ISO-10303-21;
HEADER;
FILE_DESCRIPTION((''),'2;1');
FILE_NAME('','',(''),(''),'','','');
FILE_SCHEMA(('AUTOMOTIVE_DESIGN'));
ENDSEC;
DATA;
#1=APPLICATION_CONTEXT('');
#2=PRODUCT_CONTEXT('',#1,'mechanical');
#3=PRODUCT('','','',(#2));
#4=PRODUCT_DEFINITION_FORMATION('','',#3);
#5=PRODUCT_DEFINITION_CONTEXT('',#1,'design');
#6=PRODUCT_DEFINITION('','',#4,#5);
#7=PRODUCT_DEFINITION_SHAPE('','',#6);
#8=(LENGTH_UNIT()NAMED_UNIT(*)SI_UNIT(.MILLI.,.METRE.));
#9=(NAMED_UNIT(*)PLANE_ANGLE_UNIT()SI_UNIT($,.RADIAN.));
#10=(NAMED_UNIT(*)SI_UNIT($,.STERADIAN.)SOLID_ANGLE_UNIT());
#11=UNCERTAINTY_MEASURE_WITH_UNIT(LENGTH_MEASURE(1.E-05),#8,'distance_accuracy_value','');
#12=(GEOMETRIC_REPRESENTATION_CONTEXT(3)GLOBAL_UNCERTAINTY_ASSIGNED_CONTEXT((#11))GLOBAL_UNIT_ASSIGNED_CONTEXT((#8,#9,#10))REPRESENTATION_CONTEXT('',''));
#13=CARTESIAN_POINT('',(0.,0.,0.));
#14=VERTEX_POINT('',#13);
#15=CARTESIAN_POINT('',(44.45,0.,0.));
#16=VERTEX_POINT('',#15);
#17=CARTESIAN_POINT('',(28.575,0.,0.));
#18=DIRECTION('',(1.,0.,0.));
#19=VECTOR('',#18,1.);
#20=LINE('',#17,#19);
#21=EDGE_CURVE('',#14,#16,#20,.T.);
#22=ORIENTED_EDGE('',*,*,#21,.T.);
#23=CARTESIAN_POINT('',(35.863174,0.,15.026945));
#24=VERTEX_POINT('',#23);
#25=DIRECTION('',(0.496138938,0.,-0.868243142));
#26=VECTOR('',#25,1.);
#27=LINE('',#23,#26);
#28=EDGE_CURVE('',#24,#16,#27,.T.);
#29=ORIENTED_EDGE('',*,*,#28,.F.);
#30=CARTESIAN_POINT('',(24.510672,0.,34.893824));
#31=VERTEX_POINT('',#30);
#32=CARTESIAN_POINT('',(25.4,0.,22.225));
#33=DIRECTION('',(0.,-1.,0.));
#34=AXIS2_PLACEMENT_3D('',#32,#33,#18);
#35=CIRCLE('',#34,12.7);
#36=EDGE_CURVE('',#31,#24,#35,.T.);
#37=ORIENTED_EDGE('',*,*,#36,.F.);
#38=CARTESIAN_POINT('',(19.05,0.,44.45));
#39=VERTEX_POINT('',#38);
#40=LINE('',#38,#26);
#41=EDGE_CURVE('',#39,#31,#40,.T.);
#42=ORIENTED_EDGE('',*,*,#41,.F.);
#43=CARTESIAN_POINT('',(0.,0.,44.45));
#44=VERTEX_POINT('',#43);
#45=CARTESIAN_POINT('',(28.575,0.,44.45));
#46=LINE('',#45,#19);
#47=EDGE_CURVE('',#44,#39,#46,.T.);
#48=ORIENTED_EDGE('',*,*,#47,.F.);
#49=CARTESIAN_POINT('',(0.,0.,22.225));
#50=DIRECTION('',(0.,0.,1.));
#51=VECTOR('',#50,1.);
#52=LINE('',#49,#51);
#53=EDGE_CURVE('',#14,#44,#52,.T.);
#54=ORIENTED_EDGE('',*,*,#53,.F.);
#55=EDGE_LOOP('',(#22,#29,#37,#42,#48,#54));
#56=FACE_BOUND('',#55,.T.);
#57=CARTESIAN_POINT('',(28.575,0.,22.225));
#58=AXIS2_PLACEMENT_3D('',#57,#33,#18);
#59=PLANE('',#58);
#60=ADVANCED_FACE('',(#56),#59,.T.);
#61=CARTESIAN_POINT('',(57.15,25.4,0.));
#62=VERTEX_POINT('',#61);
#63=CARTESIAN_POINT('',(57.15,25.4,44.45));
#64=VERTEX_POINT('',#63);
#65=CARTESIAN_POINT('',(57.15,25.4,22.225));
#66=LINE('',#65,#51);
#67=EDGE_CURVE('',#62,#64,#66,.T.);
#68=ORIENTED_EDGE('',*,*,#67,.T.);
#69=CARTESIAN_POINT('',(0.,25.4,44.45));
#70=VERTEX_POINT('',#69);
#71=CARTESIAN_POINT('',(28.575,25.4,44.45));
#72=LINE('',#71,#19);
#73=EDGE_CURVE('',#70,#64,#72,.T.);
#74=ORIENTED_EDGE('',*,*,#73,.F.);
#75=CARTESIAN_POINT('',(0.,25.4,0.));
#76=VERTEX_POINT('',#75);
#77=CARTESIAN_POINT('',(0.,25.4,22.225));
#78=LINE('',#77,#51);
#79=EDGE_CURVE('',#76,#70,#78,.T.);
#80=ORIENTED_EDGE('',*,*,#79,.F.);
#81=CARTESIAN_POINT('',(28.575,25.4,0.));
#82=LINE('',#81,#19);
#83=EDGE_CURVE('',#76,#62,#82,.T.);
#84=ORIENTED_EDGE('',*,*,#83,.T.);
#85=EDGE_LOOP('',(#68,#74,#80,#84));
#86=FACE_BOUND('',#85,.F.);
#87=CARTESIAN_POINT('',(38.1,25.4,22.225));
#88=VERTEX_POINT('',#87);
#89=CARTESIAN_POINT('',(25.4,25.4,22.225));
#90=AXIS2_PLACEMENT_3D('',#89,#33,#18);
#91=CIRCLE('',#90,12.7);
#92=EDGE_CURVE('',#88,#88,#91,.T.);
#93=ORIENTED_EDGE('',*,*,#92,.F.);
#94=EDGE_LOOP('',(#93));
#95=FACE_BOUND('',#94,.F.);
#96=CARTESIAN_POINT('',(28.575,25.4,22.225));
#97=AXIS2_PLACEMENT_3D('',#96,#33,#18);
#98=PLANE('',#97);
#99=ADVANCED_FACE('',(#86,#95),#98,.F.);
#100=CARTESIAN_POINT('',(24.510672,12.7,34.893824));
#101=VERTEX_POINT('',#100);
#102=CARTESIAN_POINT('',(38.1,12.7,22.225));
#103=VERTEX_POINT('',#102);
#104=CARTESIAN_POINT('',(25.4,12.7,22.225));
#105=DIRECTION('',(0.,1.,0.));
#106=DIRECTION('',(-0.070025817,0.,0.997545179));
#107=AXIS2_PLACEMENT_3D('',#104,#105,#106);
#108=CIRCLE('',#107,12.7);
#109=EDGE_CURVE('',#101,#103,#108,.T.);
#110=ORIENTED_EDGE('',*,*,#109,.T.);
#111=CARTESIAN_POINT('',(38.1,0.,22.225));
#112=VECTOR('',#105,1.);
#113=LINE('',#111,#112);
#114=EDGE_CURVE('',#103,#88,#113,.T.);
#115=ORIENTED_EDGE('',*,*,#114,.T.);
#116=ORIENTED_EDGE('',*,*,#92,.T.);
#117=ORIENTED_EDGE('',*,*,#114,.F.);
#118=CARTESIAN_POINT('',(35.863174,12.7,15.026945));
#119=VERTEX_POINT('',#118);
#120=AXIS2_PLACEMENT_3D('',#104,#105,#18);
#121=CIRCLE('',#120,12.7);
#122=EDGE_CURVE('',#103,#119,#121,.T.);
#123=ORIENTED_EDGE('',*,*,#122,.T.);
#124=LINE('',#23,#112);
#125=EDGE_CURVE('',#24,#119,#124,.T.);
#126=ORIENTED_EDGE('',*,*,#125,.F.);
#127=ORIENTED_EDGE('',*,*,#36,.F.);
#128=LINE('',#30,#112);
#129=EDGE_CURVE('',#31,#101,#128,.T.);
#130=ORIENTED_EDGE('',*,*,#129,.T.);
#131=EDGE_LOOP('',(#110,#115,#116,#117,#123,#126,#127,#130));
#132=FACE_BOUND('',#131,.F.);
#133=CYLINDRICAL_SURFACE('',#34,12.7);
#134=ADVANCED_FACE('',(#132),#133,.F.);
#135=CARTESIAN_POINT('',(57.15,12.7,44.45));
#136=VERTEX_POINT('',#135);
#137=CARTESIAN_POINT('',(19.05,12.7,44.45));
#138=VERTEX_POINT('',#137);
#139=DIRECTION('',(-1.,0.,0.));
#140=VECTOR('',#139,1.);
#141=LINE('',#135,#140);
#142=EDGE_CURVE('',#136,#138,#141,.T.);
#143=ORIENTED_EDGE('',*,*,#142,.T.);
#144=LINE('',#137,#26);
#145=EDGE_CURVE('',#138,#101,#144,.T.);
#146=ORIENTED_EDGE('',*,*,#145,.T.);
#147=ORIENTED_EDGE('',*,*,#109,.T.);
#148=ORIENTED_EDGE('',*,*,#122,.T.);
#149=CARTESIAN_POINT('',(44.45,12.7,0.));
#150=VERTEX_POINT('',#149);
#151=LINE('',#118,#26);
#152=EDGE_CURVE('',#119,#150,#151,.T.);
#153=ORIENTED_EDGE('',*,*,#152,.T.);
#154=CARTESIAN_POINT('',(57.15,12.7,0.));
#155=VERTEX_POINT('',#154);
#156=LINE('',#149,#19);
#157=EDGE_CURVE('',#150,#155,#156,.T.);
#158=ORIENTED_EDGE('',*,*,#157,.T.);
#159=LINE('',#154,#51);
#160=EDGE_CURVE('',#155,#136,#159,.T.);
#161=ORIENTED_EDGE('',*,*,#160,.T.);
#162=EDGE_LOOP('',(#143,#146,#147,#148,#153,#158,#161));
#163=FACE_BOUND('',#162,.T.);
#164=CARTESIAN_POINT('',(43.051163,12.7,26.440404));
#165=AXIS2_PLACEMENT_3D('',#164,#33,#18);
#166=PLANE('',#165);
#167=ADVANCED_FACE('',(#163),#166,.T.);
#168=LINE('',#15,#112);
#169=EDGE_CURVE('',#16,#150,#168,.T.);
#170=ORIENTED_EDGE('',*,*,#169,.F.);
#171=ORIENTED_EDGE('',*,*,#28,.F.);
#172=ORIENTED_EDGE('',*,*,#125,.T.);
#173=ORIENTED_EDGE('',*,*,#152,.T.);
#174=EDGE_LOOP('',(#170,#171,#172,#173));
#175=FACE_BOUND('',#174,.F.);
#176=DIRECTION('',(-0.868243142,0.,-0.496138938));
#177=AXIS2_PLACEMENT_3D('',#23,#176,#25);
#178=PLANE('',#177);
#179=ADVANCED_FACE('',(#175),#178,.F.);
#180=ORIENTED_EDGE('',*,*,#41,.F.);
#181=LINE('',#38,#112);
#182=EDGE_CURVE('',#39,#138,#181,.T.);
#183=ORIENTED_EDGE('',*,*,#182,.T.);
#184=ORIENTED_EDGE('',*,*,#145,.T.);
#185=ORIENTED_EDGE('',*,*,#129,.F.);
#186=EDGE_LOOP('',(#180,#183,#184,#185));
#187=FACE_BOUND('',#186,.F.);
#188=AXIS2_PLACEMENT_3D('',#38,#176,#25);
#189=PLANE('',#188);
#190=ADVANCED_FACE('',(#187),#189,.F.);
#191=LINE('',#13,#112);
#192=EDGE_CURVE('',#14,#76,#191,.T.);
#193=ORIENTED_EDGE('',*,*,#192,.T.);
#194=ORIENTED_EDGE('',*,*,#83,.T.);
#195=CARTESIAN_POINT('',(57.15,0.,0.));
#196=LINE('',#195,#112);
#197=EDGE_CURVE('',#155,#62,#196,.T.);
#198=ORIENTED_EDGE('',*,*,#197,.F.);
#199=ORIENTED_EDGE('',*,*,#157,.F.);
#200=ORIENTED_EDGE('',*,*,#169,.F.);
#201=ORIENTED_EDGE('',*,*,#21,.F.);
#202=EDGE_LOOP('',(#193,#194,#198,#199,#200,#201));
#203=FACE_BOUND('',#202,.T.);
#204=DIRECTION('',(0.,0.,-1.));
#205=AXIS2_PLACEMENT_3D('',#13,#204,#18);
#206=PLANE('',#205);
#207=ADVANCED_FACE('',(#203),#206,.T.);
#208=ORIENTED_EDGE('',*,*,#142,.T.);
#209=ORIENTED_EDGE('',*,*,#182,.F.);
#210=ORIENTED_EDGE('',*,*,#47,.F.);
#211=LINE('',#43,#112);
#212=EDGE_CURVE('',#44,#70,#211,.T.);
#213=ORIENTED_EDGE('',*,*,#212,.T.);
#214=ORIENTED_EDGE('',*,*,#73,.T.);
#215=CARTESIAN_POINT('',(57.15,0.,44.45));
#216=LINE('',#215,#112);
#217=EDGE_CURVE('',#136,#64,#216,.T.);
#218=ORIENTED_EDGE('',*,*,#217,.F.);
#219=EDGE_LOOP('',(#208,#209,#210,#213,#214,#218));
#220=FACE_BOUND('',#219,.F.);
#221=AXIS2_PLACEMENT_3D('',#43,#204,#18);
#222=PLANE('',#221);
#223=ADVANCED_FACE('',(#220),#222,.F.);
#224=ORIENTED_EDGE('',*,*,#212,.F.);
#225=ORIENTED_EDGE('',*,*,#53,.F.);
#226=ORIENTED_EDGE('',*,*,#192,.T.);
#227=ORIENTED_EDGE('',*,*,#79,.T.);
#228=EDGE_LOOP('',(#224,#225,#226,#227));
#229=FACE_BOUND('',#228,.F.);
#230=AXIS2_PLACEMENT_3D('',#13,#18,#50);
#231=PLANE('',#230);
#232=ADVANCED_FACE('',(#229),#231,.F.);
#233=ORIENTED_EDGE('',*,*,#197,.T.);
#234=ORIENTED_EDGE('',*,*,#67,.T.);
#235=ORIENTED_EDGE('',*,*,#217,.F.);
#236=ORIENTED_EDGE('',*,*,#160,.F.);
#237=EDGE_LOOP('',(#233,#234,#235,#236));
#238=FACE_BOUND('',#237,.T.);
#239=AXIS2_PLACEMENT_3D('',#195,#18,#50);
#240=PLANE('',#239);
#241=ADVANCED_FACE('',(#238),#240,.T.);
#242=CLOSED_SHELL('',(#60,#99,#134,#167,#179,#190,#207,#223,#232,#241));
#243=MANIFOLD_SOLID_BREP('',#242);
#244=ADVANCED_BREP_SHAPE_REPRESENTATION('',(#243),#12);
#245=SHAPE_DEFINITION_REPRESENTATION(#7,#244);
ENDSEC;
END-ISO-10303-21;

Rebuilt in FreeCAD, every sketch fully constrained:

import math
import FreeCAD as App
import Part
import Sketcher
from FreeCAD import Vector
Q = App.Units.Quantity


def add_polygon(sketch, points):
    """Adds a closed chain of lines whose ends are joined by coincident constraints."""
    first, n = sketch.GeometryCount, len(points)
    for a, b in zip(points, points[1:] + points[:1]):
        sketch.addGeometry(Part.LineSegment(App.Vector(*a, 0), App.Vector(*b, 0)), False)
    for i in range(n):
        sketch.addConstraint(Sketcher.Constraint("Coincident", first + i, 2, first + (i + 1) % n, 1))

doc = App.newDocument("Part")
params = doc.addObject("Spreadsheet::Sheet", "Params")
for row, (alias, value) in enumerate([
    ("sketch1_width", "2.25 in"),
    ("sketch1_height", "1.75 in"),
    ("pad1_length", "1 in"),
    ("sketch2_diameter", "1 in"),
    ("pocket1_length", "1 in"),
    ("sketch3_radius", "0.5 in"),
    ("sketch3_width", "1.5 in"),
    ("sketch3_width2", "0.5 in"),
    ("sketch3_height", "1.75 in"),
    ("pocket2_length", "0.5 in"),
], start=1):
    params.set(f"A{row}", alias)
    params.set(f"B{row}", "=" + value)
    params.setAlias(f"B{row}", alias)

body = doc.addObject("PartDesign::Body", "Body")

sketch1 = body.newObject("Sketcher::SketchObject", "Sketch")
sketch1.AttachmentSupport = (doc.getObject("XZ_Plane"), [""])
sketch1.MapMode = "FlatFace"
add_polygon(sketch1, [(0, 44), (0, 0), (57, 0), (57, 44)])
sketch1.addConstraint(Sketcher.Constraint("Vertical", 0))
sketch1.addConstraint(Sketcher.Constraint("Horizontal", 1))
sketch1.addConstraint(Sketcher.Constraint("Vertical", 2))
sketch1.addConstraint(Sketcher.Constraint("Horizontal", 3))
sketch1.addConstraint(Sketcher.Constraint("Coincident", 0, 2, -1, 1))
sketch1.addConstraint(Sketcher.Constraint("DistanceX", 1, 1, 1, 2, Q("2.25 in")))
sketch1.addConstraint(Sketcher.Constraint("DistanceY", 0, 2, 0, 1, Q("1.75 in")))
sketch1.setExpression("Constraints[9]", "Params.sketch1_width")
sketch1.setExpression("Constraints[10]", "Params.sketch1_height")
pad1 = body.newObject("PartDesign::Pad", "Pad")
pad1.Profile = sketch1
pad1.setExpression("Length", "Params.pad1_length")
pad1.Reversed = True

sketch2 = body.newObject("Sketcher::SketchObject", "Sketch001")
sketch2.AttachmentSupport = (doc.getObject("XZ_Plane"), [""])
sketch2.MapMode = "FlatFace"
sketch2.addGeometry(Part.Circle(Vector(25, 22, 0), Vector(0, 0, 1), 13), False)
sketch2.addConstraint(Sketcher.Constraint("Diameter", 0, Q("1 in")))
sketch2.addConstraint(Sketcher.Constraint("DistanceX", -1, 1, 0, 3, Q("1 in")))
sketch2.addConstraint(Sketcher.Constraint("DistanceY", -1, 1, 0, 3, Q("0.875 in")))
sketch2.setExpression("Constraints[0]", "Params.sketch2_diameter")
pocket1 = body.newObject("PartDesign::Pocket", "Pocket")
pocket1.Profile = sketch2
pocket1.setExpression("Length", "Params.pocket1_length")

sketch3 = body.newObject("Sketcher::SketchObject", "Sketch002")
sketch3.AttachmentSupport = (doc.getObject("XZ_Plane"), [""])
sketch3.MapMode = "FlatFace"
sketch3.addGeometry(Part.LineSegment(Vector(57, 44, 0), Vector(19, 44, 0)), False)
sketch3.addGeometry(Part.LineSegment(Vector(19, 44, 0), Vector(25, 35, 0)), False)
sketch3.addGeometry(Part.ArcOfCircle(Part.Circle(Vector(25, 22, 0), Vector(0, 0, 1), 13), math.radians(0), math.radians(94)), False)
sketch3.addGeometry(Part.ArcOfCircle(Part.Circle(Vector(25, 22, 0), Vector(0, 0, 1), 13), math.radians(-35), math.radians(0)), False)
sketch3.addGeometry(Part.LineSegment(Vector(36, 15, 0), Vector(44, 0, 0)), False)
sketch3.addGeometry(Part.LineSegment(Vector(44, 0, 0), Vector(57, 0, 0)), False)
sketch3.addGeometry(Part.LineSegment(Vector(57, 0, 0), Vector(57, 44, 0)), False)
sketch3.addConstraint(Sketcher.Constraint("Coincident", 0, 2, 1, 1))
sketch3.addConstraint(Sketcher.Constraint("Coincident", 1, 2, 2, 2))
sketch3.addConstraint(Sketcher.Constraint("Tangent", 2, 1, 3, 2))
sketch3.addConstraint(Sketcher.Constraint("Coincident", 3, 1, 4, 1))
sketch3.addConstraint(Sketcher.Constraint("Coincident", 4, 2, 5, 1))
sketch3.addConstraint(Sketcher.Constraint("Coincident", 5, 2, 6, 1))
sketch3.addConstraint(Sketcher.Constraint("Coincident", 6, 2, 0, 1))
sketch3.addConstraint(Sketcher.Constraint("Horizontal", 0))
sketch3.addConstraint(Sketcher.Constraint("Horizontal", 5))
sketch3.addConstraint(Sketcher.Constraint("Vertical", 6))
sketch3.addConstraint(Sketcher.Constraint("Equal", 2, 3))
sketch3.addConstraint(Sketcher.Constraint("PointOnObject", 4, 2, -1))
sketch3.addConstraint(Sketcher.Constraint("Parallel", 1, 4))
sketch3.addConstraint(Sketcher.Constraint("Horizontal", 3, 3, 2, 1))
sketch3.addConstraint(Sketcher.Constraint("Radius", 2, Q("0.5 in")))
sketch3.addConstraint(Sketcher.Constraint("DistanceX", 0, 2, 0, 1, Q("1.5 in")))
sketch3.addConstraint(Sketcher.Constraint("DistanceX", 5, 1, 5, 2, Q("0.5 in")))
sketch3.addConstraint(Sketcher.Constraint("DistanceX", -1, 1, 2, 3, Q("1 in")))
sketch3.addConstraint(Sketcher.Constraint("DistanceY", 6, 1, 6, 2, Q("1.75 in")))
sketch3.addConstraint(Sketcher.Constraint("DistanceX", -1, 1, 0, 2, Q("0.75 in")))
sketch3.addConstraint(Sketcher.Constraint("DistanceY", -1, 1, 2, 3, Q("0.875 in")))
sketch3.addConstraint(Sketcher.Constraint("Distance", 4, Q("17.307301 mm")))
sketch3.setExpression("Constraints[14]", "Params.sketch3_radius")
sketch3.setExpression("Constraints[15]", "Params.sketch3_width")
sketch3.setExpression("Constraints[16]", "Params.sketch3_width2")
sketch3.setExpression("Constraints[18]", "Params.sketch3_height")
pocket2 = body.newObject("PartDesign::Pocket", "Pocket001")
pocket2.Profile = sketch3
pocket2.setExpression("Length", "Params.pocket2_length")

doc.recompute()
